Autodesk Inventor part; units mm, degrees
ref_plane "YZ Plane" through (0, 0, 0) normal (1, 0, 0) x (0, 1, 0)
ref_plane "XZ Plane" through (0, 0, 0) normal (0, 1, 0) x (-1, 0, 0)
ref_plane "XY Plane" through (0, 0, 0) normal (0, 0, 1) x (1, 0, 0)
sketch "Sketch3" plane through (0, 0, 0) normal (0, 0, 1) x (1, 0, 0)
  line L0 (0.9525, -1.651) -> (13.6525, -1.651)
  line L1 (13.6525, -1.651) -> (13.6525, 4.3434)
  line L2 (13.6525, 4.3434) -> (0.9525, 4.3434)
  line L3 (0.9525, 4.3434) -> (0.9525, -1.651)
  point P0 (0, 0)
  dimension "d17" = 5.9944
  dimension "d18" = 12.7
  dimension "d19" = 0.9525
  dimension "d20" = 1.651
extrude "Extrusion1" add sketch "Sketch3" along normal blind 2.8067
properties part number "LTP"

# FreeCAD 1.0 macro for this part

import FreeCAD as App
import Part
import Sketcher

V = App.Vector
Q = App.Units.Quantity


def add_polygon(sketch, points):
    """Adds a closed chain of lines whose ends are joined by coincident constraints."""
    first, n = sketch.GeometryCount, len(points)
    for a, b in zip(points, points[1:] + points[:1]):
        sketch.addGeometry(Part.LineSegment(App.Vector(*a, 0), App.Vector(*b, 0)), False)
    for i in range(n):
        sketch.addConstraint(Sketcher.Constraint("Coincident", first + i, 2, first + (i + 1) % n, 1))

doc = App.newDocument("Part")
body = doc.addObject("PartDesign::Body", "Body")

# Sketch on XY plane
sketch1 = body.newObject("Sketcher::SketchObject", "Sketch")
sketch1.AttachmentSupport = (doc.getObject("XY_Plane"), [""])
sketch1.MapMode = "FlatFace"
add_polygon(sketch1, [(1, 4), (1, -2), (14, -2), (14, 4)])  # lines 0-3
sketch1.addConstraint([
    Sketcher.Constraint("Vertical", 0),
    Sketcher.Constraint("Horizontal", 1),
    Sketcher.Constraint("Vertical", 2),
    Sketcher.Constraint("Horizontal", 3),
    Sketcher.Constraint("DistanceX", 1, 1, 1, 2, Q("0.5 in")),
    Sketcher.Constraint("DistanceY", 0, 2, 0, 1, Q("0.236 in")),
    Sketcher.Constraint("DistanceY", 0, 2, -1, 1, Q("0.065 in")),
    Sketcher.Constraint("DistanceX", -1, 1, 0, 2, Q("0.0375 in")),
])
pad1 = body.newObject("PartDesign::Pad", "Pad")
pad1.Profile = sketch1
pad1.Length = Q("0.1105 in")

doc.recompute()
